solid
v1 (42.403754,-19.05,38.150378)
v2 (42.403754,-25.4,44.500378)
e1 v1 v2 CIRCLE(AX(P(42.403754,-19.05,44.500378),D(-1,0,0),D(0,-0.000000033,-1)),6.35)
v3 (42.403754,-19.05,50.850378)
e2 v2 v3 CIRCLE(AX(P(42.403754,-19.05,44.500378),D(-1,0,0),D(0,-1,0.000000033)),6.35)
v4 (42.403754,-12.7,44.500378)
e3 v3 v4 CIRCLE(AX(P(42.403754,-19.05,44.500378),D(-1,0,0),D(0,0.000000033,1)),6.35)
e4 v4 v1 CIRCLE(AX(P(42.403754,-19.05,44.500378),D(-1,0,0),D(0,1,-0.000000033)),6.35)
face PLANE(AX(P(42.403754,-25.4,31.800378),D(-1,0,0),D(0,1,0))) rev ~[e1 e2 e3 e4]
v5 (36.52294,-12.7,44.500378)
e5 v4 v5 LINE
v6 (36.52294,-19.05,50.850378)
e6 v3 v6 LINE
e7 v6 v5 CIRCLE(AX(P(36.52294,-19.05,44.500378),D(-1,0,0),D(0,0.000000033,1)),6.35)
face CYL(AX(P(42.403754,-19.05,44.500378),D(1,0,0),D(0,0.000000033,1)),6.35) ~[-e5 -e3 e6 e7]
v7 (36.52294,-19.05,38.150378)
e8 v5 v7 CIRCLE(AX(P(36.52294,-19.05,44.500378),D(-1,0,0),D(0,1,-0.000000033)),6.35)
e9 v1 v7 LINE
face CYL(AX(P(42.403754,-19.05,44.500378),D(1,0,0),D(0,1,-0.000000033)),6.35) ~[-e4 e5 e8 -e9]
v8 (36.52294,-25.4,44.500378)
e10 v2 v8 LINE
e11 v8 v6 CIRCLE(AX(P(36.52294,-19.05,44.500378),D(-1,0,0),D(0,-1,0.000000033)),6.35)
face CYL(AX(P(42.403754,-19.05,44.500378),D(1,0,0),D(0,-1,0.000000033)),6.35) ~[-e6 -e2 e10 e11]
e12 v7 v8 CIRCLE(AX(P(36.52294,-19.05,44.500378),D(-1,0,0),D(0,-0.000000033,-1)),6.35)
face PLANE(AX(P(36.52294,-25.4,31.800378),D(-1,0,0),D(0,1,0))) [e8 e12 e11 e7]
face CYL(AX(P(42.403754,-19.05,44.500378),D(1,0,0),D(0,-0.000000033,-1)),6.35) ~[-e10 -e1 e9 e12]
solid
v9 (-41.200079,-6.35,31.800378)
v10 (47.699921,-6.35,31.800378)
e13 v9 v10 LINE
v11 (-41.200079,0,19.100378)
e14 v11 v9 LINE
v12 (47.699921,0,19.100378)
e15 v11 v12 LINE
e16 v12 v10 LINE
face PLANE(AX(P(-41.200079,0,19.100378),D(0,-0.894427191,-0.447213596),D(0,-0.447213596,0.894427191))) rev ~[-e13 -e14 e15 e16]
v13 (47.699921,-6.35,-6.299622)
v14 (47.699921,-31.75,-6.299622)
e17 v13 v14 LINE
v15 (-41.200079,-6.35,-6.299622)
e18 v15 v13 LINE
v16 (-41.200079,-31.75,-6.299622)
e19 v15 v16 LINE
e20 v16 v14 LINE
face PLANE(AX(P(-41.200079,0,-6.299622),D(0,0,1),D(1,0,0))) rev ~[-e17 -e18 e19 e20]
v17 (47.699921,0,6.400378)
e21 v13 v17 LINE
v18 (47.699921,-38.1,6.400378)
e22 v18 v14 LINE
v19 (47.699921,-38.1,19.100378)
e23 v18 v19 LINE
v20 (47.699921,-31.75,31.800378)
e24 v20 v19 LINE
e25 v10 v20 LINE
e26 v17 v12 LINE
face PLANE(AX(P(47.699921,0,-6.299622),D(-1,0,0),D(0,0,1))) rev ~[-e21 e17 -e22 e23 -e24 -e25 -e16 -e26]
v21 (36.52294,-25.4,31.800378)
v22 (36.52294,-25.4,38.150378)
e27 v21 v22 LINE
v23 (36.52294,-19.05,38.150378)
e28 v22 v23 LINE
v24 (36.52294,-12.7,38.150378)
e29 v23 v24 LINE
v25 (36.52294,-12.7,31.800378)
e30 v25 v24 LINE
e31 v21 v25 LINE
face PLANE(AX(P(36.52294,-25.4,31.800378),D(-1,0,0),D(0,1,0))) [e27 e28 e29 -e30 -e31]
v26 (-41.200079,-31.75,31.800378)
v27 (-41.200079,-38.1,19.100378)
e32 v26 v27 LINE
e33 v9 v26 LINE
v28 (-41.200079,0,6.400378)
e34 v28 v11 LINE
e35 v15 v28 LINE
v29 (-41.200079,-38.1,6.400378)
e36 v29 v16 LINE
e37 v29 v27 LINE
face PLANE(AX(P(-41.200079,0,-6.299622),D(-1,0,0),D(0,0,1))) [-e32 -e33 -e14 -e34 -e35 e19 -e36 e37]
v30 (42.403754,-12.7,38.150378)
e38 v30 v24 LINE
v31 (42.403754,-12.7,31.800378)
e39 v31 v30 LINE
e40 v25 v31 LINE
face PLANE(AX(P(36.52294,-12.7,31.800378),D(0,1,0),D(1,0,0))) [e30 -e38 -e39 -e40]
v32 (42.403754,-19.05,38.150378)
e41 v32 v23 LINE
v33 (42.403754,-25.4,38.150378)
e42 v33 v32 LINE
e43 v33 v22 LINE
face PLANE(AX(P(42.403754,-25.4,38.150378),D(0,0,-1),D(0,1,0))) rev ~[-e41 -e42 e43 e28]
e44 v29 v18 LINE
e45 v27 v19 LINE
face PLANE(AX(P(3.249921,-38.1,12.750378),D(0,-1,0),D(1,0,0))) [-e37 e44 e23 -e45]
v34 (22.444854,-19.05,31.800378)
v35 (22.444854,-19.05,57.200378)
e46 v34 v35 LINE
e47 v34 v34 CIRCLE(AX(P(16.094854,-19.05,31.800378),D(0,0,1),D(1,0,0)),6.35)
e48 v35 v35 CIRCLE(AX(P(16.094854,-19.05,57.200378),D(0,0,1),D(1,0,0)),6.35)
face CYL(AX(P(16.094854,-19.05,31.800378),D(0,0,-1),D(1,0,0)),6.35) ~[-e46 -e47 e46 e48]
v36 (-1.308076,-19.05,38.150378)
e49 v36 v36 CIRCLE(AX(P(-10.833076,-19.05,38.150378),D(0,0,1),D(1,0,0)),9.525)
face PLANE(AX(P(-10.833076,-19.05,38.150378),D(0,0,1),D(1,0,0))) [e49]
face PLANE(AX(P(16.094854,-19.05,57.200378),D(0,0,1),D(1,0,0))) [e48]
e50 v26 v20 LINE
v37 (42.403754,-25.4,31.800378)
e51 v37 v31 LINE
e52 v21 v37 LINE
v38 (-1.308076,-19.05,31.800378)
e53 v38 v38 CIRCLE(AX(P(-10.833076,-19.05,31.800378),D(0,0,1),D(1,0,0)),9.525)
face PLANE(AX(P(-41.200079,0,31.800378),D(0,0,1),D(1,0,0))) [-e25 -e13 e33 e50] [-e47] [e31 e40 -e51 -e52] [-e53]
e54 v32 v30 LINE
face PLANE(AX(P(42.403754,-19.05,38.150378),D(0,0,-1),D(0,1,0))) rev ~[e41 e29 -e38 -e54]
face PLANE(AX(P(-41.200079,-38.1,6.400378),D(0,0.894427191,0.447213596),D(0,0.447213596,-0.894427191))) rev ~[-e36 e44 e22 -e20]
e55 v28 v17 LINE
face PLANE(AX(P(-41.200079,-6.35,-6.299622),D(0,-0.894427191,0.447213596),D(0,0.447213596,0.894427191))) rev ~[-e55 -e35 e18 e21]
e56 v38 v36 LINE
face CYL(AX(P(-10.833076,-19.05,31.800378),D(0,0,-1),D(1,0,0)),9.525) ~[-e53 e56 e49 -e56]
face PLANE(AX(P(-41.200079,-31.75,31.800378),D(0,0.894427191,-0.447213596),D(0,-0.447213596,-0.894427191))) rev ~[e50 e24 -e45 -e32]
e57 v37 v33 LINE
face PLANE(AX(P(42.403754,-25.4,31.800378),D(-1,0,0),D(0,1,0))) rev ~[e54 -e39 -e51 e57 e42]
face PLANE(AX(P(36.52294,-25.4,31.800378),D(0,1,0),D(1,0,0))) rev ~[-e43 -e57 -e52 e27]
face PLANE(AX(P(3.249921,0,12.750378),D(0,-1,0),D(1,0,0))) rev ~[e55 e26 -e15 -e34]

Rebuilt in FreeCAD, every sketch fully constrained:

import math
import FreeCAD as App
import Part
import Sketcher
from FreeCAD import Vector
Q = App.Units.Quantity

doc = App.newDocument("Part")
body = doc.addObject("PartDesign::Body", "Body")
body.AllowCompound = True

sketch1 = body.newObject("Sketcher::SketchObject", "Sketch")
sketch1.AttachmentSupport = (doc.getObject("XZ_Plane"), [""])
sketch1.MapMode = "FlatFace"
sketch1.addGeometry(Part.LineSegment(Vector(-41.200079, 31.800378, 0), Vector(-41.200079, -6.299622, 0)), False)
sketch1.addGeometry(Part.LineSegment(Vector(-41.200079, -6.299622, 0), Vector(47.699921, -6.299622, 0)), False)
sketch1.addGeometry(Part.LineSegment(Vector(47.699921, -6.299622, 0), Vector(47.699921, 31.800378, 0)), False)
sketch1.addGeometry(Part.LineSegment(Vector(47.699921, 31.800378, 0), Vector(-41.200079, 31.800378, 0)), False)
sketch1.addConstraint(Sketcher.Constraint("Coincident", 0, 2, 1, 1))
sketch1.addConstraint(Sketcher.Constraint("Coincident", 1, 2, 2, 1))
sketch1.addConstraint(Sketcher.Constraint("Coincident", 2, 2, 3, 1))
sketch1.addConstraint(Sketcher.Constraint("Coincident", 3, 2, 0, 1))
sketch1.addConstraint(Sketcher.Constraint("Vertical", 0))
sketch1.addConstraint(Sketcher.Constraint("Horizontal", 1))
sketch1.addConstraint(Sketcher.Constraint("Vertical", 2))
sketch1.addConstraint(Sketcher.Constraint("Horizontal", 3))
sketch1.addConstraint(Sketcher.Constraint("DistanceX", 1, 1, 1, 2, Q("3.5 in")))
sketch1.addConstraint(Sketcher.Constraint("DistanceY", 0, 2, 0, 1, Q("1.5 in")))
sketch1.addConstraint(Sketcher.Constraint("DistanceX", 0, 2, -1, 1, Q("41.200079 mm")))
sketch1.addConstraint(Sketcher.Constraint("DistanceY", 0, 2, -1, 1, Q("6.299622 mm")))
pad1 = body.newObject("PartDesign::Pad", "Pad")
pad1.Profile = sketch1
pad1.Length = Q("1.5 in")

sketch2 = body.newObject("Sketcher::SketchObject", "Sketch001")
sketch2.AttachmentSupport = (doc.getObject("YZ_Plane"), [""])
sketch2.MapMode = "FlatFace"
sketch2.AttachmentOffset = App.Placement(Vector(0, 0, -41.200079), App.Rotation())
sketch2.addGeometry(Part.LineSegment(Vector(0, 31.800378, 0), Vector(0, 19.100378, 0)), False)
sketch2.addGeometry(Part.LineSegment(Vector(0, 19.100378, 0), Vector(-6.35, 31.800378, 0)), False)
sketch2.addGeometry(Part.LineSegment(Vector(-6.35, 31.800378, 0), Vector(0, 31.800378, 0)), False)
sketch2.addGeometry(Part.LineSegment(Vector(-6.35, -6.299622, 0), Vector(0, 6.400378, 0)), False)
sketch2.addGeometry(Part.LineSegment(Vector(0, 6.400378, 0), Vector(0, -6.299622, 0)), False)
sketch2.addGeometry(Part.LineSegment(Vector(0, -6.299622, 0), Vector(-6.35, -6.299622, 0)), False)
sketch2.addGeometry(Part.LineSegment(Vector(-38.1, 6.400378, 0), Vector(-31.75, -6.299622, 0)), False)
sketch2.addGeometry(Part.LineSegment(Vector(-31.75, -6.299622, 0), Vector(-38.1, -6.299622, 0)), False)
sketch2.addGeometry(Part.LineSegment(Vector(-38.1, -6.299622, 0), Vector(-38.1, 6.400378, 0)), False)
sketch2.addGeometry(Part.LineSegment(Vector(-38.1, 31.800378, 0), Vector(-31.75, 31.800378, 0)), False)
sketch2.addGeometry(Part.LineSegment(Vector(-31.75, 31.800378, 0), Vector(-38.1, 19.100378, 0)), False)
sketch2.addGeometry(Part.LineSegment(Vector(-38.1, 19.100378, 0), Vector(-38.1, 31.800378, 0)), False)
sketch2.addConstraint(Sketcher.Constraint("Coincident", 0, 2, 1, 1))
sketch2.addConstraint(Sketcher.Constraint("Coincident", 1, 2, 2, 1))
sketch2.addConstraint(Sketcher.Constraint("Coincident", 2, 2, 0, 1))
sketch2.addConstraint(Sketcher.Constraint("Coincident", 3, 2, 4, 1))
sketch2.addConstraint(Sketcher.Constraint("Coincident", 4, 2, 5, 1))
sketch2.addConstraint(Sketcher.Constraint("Coincident", 5, 2, 3, 1))
sketch2.addConstraint(Sketcher.Constraint("Coincident", 6, 2, 7, 1))
sketch2.addConstraint(Sketcher.Constraint("Coincident", 7, 2, 8, 1))
sketch2.addConstraint(Sketcher.Constraint("Coincident", 8, 2, 6, 1))
sketch2.addConstraint(Sketcher.Constraint("Coincident", 9, 2, 10, 1))
sketch2.addConstraint(Sketcher.Constraint("Coincident", 10, 2, 11, 1))
sketch2.addConstraint(Sketcher.Constraint("Coincident", 11, 2, 9, 1))
sketch2.addConstraint(Sketcher.Constraint("Vertical", 0))
sketch2.addConstraint(Sketcher.Constraint("Horizontal", 2))
sketch2.addConstraint(Sketcher.Constraint("Vertical", 4))
sketch2.addConstraint(Sketcher.Constraint("Horizontal", 5))
sketch2.addConstraint(Sketcher.Constraint("Horizontal", 7))
sketch2.addConstraint(Sketcher.Constraint("Vertical", 8))
sketch2.addConstraint(Sketcher.Constraint("Horizontal", 9))
sketch2.addConstraint(Sketcher.Constraint("Vertical", 11))
sketch2.addConstraint(Sketcher.Constraint("PointOnObject", 0, 2, -2))
sketch2.addConstraint(Sketcher.Constraint("PointOnObject", 3, 2, -2))
sketch2.addConstraint(Sketcher.Constraint("Parallel", 1, 6))
sketch2.addConstraint(Sketcher.Constraint("Parallel", 3, 10))
sketch2.addConstraint(Sketcher.Constraint("Horizontal", 5, 2, 6, 2))
sketch2.addConstraint(Sketcher.Constraint("Horizontal", 3, 2, 8, 2))
sketch2.addConstraint(Sketcher.Constraint("Horizontal", 2, 2, 9, 2))
sketch2.addConstraint(Sketcher.Constraint("Horizontal", 0, 2, 10, 2))
sketch2.addConstraint(Sketcher.Constraint("Vertical", 1, 2, 5, 2))
sketch2.addConstraint(Sketcher.Constraint("Vertical", 6, 2, 9, 2))
sketch2.addConstraint(Sketcher.Constraint("Vertical", 8, 2, 10, 2))
sketch2.addConstraint(Sketcher.Constraint("DistanceY", 0, 2, 0, 1, Q("0.5 in")))
sketch2.addConstraint(Sketcher.Constraint("DistanceY", 3, 2, 2, 2, Q("1 in")))
sketch2.addConstraint(Sketcher.Constraint("DistanceX", 6, 2, 5, 2, Q("1 in")))
sketch2.addConstraint(Sketcher.Constraint("DistanceX", 2, 1, 2, 2, Q("0.25 in")))
sketch2.addConstraint(Sketcher.Constraint("DistanceY", -1, 1, 0, 2, Q("19.100378 mm")))
pocket1 = body.newObject("PartDesign::Pocket", "Pocket")
pocket1.Profile = sketch2
pocket1.Type = "ThroughAll"
pocket1.Reversed = True

sketch3 = body.newObject("Sketcher::SketchObject", "Sketch002")
sketch3.AttachmentSupport = (doc.getObject("XY_Plane"), [""])
sketch3.MapMode = "FlatFace"
sketch3.AttachmentOffset = App.Placement(Vector(0, 0, 31.800378), App.Rotation())
sketch3.addGeometry(Part.Circle(Vector(16.094854, -19.05, 0), Vector(0, 0, 1), 6.35), False)
sketch3.addConstraint(Sketcher.Constraint("Diameter", 0, Q("0.5 in")))
sketch3.addConstraint(Sketcher.Constraint("DistanceY", 0, 3, -1, 1, Q("0.75 in")))
sketch3.addConstraint(Sketcher.Constraint("DistanceX", -1, 1, 0, 3, Q("16.094854 mm")))
pad2 = body.newObject("PartDesign::Pad", "Pad001")
pad2.Profile = sketch3
pad2.Length = Q("1 in")

sketch4 = body.newObject("Sketcher::SketchObject", "Sketch003")
sketch4.AttachmentSupport = (doc.getObject("XY_Plane"), [""])
sketch4.MapMode = "FlatFace"
sketch4.AttachmentOffset = App.Placement(Vector(0, 0, 31.800378), App.Rotation())
sketch4.addGeometry(Part.Circle(Vector(-10.833076, -19.05, 0), Vector(0, 0, 1), 9.525), False)
sketch4.addConstraint(Sketcher.Constraint("Diameter", 0, Q("0.75 in")))
sketch4.addConstraint(Sketcher.Constraint("DistanceY", 0, 3, -1, 1, Q("0.75 in")))
sketch4.addConstraint(Sketcher.Constraint("DistanceX", 0, 3, -1, 1, Q("10.833076 mm")))
pad3 = body.newObject("PartDesign::Pad", "Pad002")
pad3.Profile = sketch4
pad3.Length = Q("0.25 in")

sketch5 = body.newObject("Sketcher::SketchObject", "Sketch004")
sketch5.AttachmentSupport = (doc.getObject("XY_Plane"), [""])
sketch5.MapMode = "FlatFace"
sketch5.AttachmentOffset = App.Placement(Vector(0, 0, 31.800378), App.Rotation())
sketch5.addGeometry(Part.LineSegment(Vector(36.52294, -12.7, 0), Vector(36.52294, -25.4, 0)), False)
sketch5.addGeometry(Part.LineSegment(Vector(36.52294, -25.4, 0), Vector(42.403754, -25.4, 0)), False)
sketch5.addGeometry(Part.LineSegment(Vector(42.403754, -25.4, 0), Vector(42.403754, -12.7, 0)), False)
sketch5.addGeometry(Part.LineSegment(Vector(42.403754, -12.7, 0), Vector(36.52294, -12.7, 0)), False)
sketch5.addConstraint(Sketcher.Constraint("Coincident", 0, 2, 1, 1))
sketch5.addConstraint(Sketcher.Constraint("Coincident", 1, 2, 2, 1))
sketch5.addConstraint(Sketcher.Constraint("Coincident", 2, 2, 3, 1))
sketch5.addConstraint(Sketcher.Constraint("Coincident", 3, 2, 0, 1))
sketch5.addConstraint(Sketcher.Constraint("Vertical", 0))
sketch5.addConstraint(Sketcher.Constraint("Horizontal", 1))
sketch5.addConstraint(Sketcher.Constraint("Vertical", 2))
sketch5.addConstraint(Sketcher.Constraint("Horizontal", 3))
sketch5.addConstraint(Sketcher.Constraint("DistanceY", 0, 2, 0, 1, Q("0.5 in")))
sketch5.addConstraint(Sketcher.Constraint("DistanceY", 0, 2, -1, 1, Q("1 in")))
sketch5.addConstraint(Sketcher.Constraint("DistanceX", 1, 1, 1, 2, Q("5.880814 mm")))
sketch5.addConstraint(Sketcher.Constraint("DistanceX", -1, 1, 0, 2, Q("36.52294 mm")))
pad4 = body.newObject("PartDesign::Pad", "Pad003")
pad4.Profile = sketch5
pad4.Length = Q("0.75 in")

sketch6 = body.newObject("Sketcher::SketchObject", "Sketch005")
sketch6.AttachmentSupport = (doc.getObject("YZ_Plane"), [""])
sketch6.MapMode = "FlatFace"
sketch6.AttachmentOffset = App.Placement(Vector(0, 0, 42.403754), App.Rotation())
sketch6.addGeometry(Part.LineSegment(Vector(-25.4, 50.850378, 0), Vector(-25.4, 44.500378, 0)), False)
sketch6.addGeometry(Part.ArcOfCircle(Part.Circle(Vector(-19.05, 44.500378, 0), Vector(0, 0, 1), 6.35), math.radians(90.000002), math.radians(179.999998)), False)
sketch6.addGeometry(Part.LineSegment(Vector(-19.05, 50.850378, 0), Vector(-25.4, 50.850378, 0)), False)
sketch6.addGeometry(Part.LineSegment(Vector(-25.4, 44.500378, 0), Vector(-25.4, 38.150378, 0)), False)
sketch6.addGeometry(Part.LineSegment(Vector(-25.4, 38.150378, 0), Vector(-19.05, 38.150378, 0)), False)
sketch6.addGeometry(Part.ArcOfCircle(Part.Circle(Vector(-19.05, 44.500378, 0), Vector(0, 0, 1), 6.35), math.radians(-179.999998), math.radians(-90.000002)), False)
sketch6.addGeometry(Part.ArcOfCircle(Part.Circle(Vector(-19.05, 44.500378, 0), Vector(0, 0, 1), 6.35), math.radians(-89.999998), math.radians(-0.000002)), False)
sketch6.addGeometry(Part.LineSegment(Vector(-19.05, 38.150378, 0), Vector(-12.7, 38.150378, 0)), False)
sketch6.addGeometry(Part.LineSegment(Vector(-12.7, 38.150378, 0), Vector(-12.7, 44.500378, 0)), False)
sketch6.addGeometry(Part.ArcOfCircle(Part.Circle(Vector(-19.05, 44.500378, 0), Vector(0, 0, 1), 6.35), math.radians(0.000002), math.radians(89.999998)), False)
sketch6.addGeometry(Part.LineSegment(Vector(-12.7, 44.500378, 0), Vector(-12.7, 50.850378, 0)), False)
sketch6.addGeometry(Part.LineSegment(Vector(-12.7, 50.850378, 0), Vector(-19.05, 50.850378, 0)), False)
sketch6.addConstraint(Sketcher.Constraint("Tangent", 0, 2, 1, 2))
sketch6.addConstraint(Sketcher.Constraint("Tangent", 1, 1, 2, 1))
sketch6.addConstraint(Sketcher.Constraint("Coincident", 2, 2, 0, 1))
sketch6.addConstraint(Sketcher.Constraint("Coincident", 3, 2, 4, 1))
sketch6.addConstraint(Sketcher.Constraint("Tangent", 4, 2, 5, 2))
sketch6.addConstraint(Sketcher.Constraint("Tangent", 5, 1, 3, 1))
sketch6.addConstraint(Sketcher.Constraint("Tangent", 6, 1, 7, 1))
sketch6.addConstraint(Sketcher.Constraint("Coincident", 7, 2, 8, 1))
sketch6.addConstraint(Sketcher.Constraint("Tangent", 8, 2, 6, 2))
sketch6.addConstraint(Sketcher.Constraint("Tangent", 9, 1, 10, 1))
sketch6.addConstraint(Sketcher.Constraint("Coincident", 10, 2, 11, 1))
sketch6.addConstraint(Sketcher.Constraint("Tangent", 11, 2, 9, 2))
sketch6.addConstraint(Sketcher.Constraint("Vertical", 0))
sketch6.addConstraint(Sketcher.Constraint("Horizontal", 2))
sketch6.addConstraint(Sketcher.Constraint("Vertical", 3))
sketch6.addConstraint(Sketcher.Constraint("Horizontal", 4))
sketch6.addConstraint(Sketcher.Constraint("Horizontal", 7))
sketch6.addConstraint(Sketcher.Constraint("Vertical", 8))
sketch6.addConstraint(Sketcher.Constraint("Vertical", 10))
sketch6.addConstraint(Sketcher.Constraint("Horizontal", 11))
sketch6.addConstraint(Sketcher.Constraint("Coincident", 5, 3, 1, 3))
sketch6.addConstraint(Sketcher.Constraint("Coincident", 6, 3, 1, 3))
sketch6.addConstraint(Sketcher.Constraint("Coincident", 9, 3, 1, 3))
sketch6.addConstraint(Sketcher.Constraint("Equal", 1, 5))
sketch6.addConstraint(Sketcher.Constraint("Equal", 5, 6))
sketch6.addConstraint(Sketcher.Constraint("Equal", 6, 9))
sketch6.addConstraint(Sketcher.Constraint("Radius", 1, Q("0.25 in")))
sketch6.addConstraint(Sketcher.Constraint("DistanceX", 0, 2, -1, 1, Q("1 in")))
sketch6.addConstraint(Sketcher.Constraint("DistanceY", -1, 1, 5, 3, Q("44.500378 mm")))
pocket2 = body.newObject("PartDesign::Pocket", "Pocket001")
pocket2.Profile = sketch6
pocket2.Length = 5.880814

doc.recompute()
